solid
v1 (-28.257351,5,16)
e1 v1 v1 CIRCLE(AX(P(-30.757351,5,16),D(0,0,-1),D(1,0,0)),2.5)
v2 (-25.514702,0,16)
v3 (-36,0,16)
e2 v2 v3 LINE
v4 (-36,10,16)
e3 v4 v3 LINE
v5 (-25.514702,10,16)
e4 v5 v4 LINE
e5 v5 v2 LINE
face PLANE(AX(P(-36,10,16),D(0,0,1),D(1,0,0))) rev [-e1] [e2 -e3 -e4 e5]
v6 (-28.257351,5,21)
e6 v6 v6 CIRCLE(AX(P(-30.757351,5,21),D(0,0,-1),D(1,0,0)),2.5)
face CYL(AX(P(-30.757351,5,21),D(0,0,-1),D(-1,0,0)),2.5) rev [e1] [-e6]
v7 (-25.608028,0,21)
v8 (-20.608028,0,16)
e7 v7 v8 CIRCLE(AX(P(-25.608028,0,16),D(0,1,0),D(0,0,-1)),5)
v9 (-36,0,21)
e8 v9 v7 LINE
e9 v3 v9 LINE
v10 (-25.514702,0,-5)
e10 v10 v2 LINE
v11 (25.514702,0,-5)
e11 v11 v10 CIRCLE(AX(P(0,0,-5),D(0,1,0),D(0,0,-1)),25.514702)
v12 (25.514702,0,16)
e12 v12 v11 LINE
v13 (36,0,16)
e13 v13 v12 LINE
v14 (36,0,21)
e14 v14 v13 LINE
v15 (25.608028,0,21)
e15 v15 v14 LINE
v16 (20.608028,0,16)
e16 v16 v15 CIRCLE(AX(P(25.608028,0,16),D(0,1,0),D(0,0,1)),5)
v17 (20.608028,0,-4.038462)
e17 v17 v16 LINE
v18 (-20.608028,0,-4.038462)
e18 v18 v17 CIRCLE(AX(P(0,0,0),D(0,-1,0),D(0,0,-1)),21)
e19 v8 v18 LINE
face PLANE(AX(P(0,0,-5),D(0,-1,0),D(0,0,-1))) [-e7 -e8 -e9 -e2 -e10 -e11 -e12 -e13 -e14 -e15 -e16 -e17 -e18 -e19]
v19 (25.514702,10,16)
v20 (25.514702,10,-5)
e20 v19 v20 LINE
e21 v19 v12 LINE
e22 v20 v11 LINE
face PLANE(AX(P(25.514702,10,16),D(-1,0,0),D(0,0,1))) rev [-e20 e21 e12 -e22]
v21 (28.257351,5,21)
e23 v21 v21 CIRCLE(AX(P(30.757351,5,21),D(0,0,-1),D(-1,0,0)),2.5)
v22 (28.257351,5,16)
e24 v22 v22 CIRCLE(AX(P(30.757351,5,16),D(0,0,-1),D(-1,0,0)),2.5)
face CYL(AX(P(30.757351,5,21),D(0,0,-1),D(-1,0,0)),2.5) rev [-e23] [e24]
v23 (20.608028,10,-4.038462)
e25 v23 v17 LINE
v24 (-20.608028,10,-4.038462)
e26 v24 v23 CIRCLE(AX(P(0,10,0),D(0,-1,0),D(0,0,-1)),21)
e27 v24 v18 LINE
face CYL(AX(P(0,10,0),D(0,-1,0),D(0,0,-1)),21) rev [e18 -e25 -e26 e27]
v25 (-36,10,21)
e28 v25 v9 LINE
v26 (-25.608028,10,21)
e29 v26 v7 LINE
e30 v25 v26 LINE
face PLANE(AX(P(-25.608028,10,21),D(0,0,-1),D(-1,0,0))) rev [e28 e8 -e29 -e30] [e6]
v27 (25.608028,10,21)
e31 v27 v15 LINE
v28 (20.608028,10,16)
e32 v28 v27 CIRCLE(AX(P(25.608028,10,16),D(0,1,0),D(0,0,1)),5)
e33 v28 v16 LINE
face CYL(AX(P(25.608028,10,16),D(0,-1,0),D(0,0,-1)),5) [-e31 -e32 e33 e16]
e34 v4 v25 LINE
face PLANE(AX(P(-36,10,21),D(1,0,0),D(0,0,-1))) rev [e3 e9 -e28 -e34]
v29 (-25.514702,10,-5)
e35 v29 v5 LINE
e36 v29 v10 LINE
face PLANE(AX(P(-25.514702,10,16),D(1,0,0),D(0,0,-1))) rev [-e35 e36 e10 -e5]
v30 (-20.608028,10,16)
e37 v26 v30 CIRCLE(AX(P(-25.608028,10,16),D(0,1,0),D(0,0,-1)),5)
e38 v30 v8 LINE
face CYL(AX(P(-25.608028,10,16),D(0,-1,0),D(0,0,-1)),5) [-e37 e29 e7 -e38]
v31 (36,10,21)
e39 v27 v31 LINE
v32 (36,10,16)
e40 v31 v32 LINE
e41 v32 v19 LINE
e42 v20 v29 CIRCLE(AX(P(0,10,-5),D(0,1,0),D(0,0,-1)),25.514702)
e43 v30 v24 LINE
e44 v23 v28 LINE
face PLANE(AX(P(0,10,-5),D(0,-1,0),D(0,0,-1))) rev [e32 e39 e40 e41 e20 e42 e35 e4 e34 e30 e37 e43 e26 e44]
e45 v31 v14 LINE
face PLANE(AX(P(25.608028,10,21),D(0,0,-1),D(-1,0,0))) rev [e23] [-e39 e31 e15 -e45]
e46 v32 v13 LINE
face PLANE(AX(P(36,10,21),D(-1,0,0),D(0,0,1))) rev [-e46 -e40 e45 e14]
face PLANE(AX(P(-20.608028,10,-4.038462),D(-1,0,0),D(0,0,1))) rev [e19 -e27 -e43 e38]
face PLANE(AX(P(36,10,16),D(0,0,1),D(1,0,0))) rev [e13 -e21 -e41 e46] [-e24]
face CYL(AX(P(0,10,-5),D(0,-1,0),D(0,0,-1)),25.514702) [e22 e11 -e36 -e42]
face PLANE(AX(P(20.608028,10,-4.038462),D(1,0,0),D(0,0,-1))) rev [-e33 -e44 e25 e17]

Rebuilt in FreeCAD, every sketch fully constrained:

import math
import FreeCAD as App
import Part
import Sketcher

doc = App.newDocument("Part")
body = doc.addObject("PartDesign::Body", "Body")

# Sketch on XZ plane
sketch1 = body.newObject("Sketcher::SketchObject", "Sketch")
sketch1.AttachmentSupport = (doc.getObject("XZ_Plane"), [""])
sketch1.MapMode = "FlatFace"
sketch1.addGeometry(Part.LineSegment(App.Vector(-21, 16, 0), App.Vector(-21, -4, 0)), False)
sketch1.addGeometry(Part.ArcOfCircle(Part.Circle(App.Vector(0, 0, 0), App.Vector(0, 0, 1), 21), math.radians(-169), math.radians(-11)), False)
sketch1.addGeometry(Part.LineSegment(App.Vector(21, -4, 0), App.Vector(21, 16, 0)), False)
sketch1.addGeometry(Part.ArcOfCircle(Part.Circle(App.Vector(26, 16, 0), App.Vector(0, 0, 1), 5), math.radians(90), math.radians(180)), False)
sketch1.addGeometry(Part.LineSegment(App.Vector(26, 21, 0), App.Vector(36, 21, 0)), False)
sketch1.addGeometry(Part.LineSegment(App.Vector(36, 21, 0), App.Vector(36, 16, 0)), False)
sketch1.addGeometry(Part.LineSegment(App.Vector(36, 16, 0), App.Vector(26, 16, 0)), False)
sketch1.addGeometry(Part.LineSegment(App.Vector(26, 16, 0), App.Vector(26, -5, 0)), False)
sketch1.addGeometry(Part.ArcOfCircle(Part.Circle(App.Vector(0, -5, 0), App.Vector(0, 0, 1), 26), math.radians(180), math.radians(360)), False)
sketch1.addGeometry(Part.LineSegment(App.Vector(-26, -5, 0), App.Vector(-26, 16, 0)), False)
sketch1.addGeometry(Part.LineSegment(App.Vector(-26, 16, 0), App.Vector(-36, 16, 0)), False)
sketch1.addGeometry(Part.LineSegment(App.Vector(-36, 16, 0), App.Vector(-36, 21, 0)), False)
sketch1.addGeometry(Part.LineSegment(App.Vector(-36, 21, 0), App.Vector(-26, 21, 0)), False)
sketch1.addGeometry(Part.ArcOfCircle(Part.Circle(App.Vector(-26, 16, 0), App.Vector(0, 0, 1), 5), math.radians(0), math.radians(90)), False)
sketch1.addConstraint(Sketcher.Constraint("Coincident", 0, 2, 1, 1))
sketch1.addConstraint(Sketcher.Constraint("Coincident", 1, 2, 2, 1))
sketch1.addConstraint(Sketcher.Constraint("Tangent", 2, 2, 3, 2))
sketch1.addConstraint(Sketcher.Constraint("Tangent", 3, 1, 4, 1))
sketch1.addConstraint(Sketcher.Constraint("Coincident", 4, 2, 5, 1))
sketch1.addConstraint(Sketcher.Constraint("Coincident", 5, 2, 6, 1))
sketch1.addConstraint(Sketcher.Constraint("Coincident", 6, 2, 7, 1))
sketch1.addConstraint(Sketcher.Constraint("Tangent", 7, 2, 8, 2))
sketch1.addConstraint(Sketcher.Constraint("Tangent", 8, 1, 9, 1))
sketch1.addConstraint(Sketcher.Constraint("Coincident", 9, 2, 10, 1))
sketch1.addConstraint(Sketcher.Constraint("Coincident", 10, 2, 11, 1))
sketch1.addConstraint(Sketcher.Constraint("Coincident", 11, 2, 12, 1))
sketch1.addConstraint(Sketcher.Constraint("Tangent", 12, 2, 13, 2))
sketch1.addConstraint(Sketcher.Constraint("Tangent", 13, 1, 0, 1))
sketch1.addConstraint(Sketcher.Constraint("Vertical", 0))
sketch1.addConstraint(Sketcher.Constraint("Vertical", 2))
sketch1.addConstraint(Sketcher.Constraint("Horizontal", 4))
sketch1.addConstraint(Sketcher.Constraint("Vertical", 5))
sketch1.addConstraint(Sketcher.Constraint("Horizontal", 6))
sketch1.addConstraint(Sketcher.Constraint("Vertical", 7))
sketch1.addConstraint(Sketcher.Constraint("Vertical", 9))
sketch1.addConstraint(Sketcher.Constraint("Horizontal", 10))
sketch1.addConstraint(Sketcher.Constraint("Vertical", 11))
sketch1.addConstraint(Sketcher.Constraint("Horizontal", 12))
sketch1.addConstraint(Sketcher.Constraint("Coincident", 1, 3, -1, 1))
sketch1.addConstraint(Sketcher.Constraint("Equal", 3, 13))
sketch1.addConstraint(Sketcher.Constraint("Symmetric", 3, 3, 13, 3, -2))
sketch1.addConstraint(Sketcher.Constraint("Symmetric", 6, 2, 9, 2, -2))
sketch1.addConstraint(Sketcher.Constraint("Horizontal", 2, 2, 5, 2))
sketch1.addConstraint(Sketcher.Constraint("Equal", 6, 10))
sketch1.addConstraint(Sketcher.Constraint("Radius", 1, 21.0))
sketch1.addConstraint(Sketcher.Constraint("Radius", 3, 5.0))
sketch1.addConstraint(Sketcher.Constraint("DistanceY", 7, 2, 7, 1, 21.0))
sketch1.addConstraint(Sketcher.Constraint("DistanceY", -1, 1, 3, 3, 16.0))
sketch1.addConstraint(Sketcher.Constraint("DistanceX", -1, 1, 4, 2, 36.0))
sketch1.addConstraint(Sketcher.Constraint("Radius", 8, 25.514702))
sketch1.addConstraint(Sketcher.Constraint("DistanceX", 4, 1, 4, 2, 10.391972))
pad1 = body.newObject("PartDesign::Pad", "Pad")
pad1.Profile = sketch1
pad1.Length = 10
pad1.Reversed = True

# Sketch on XY plane
sketch2 = body.newObject("Sketcher::SketchObject", "Sketch001")
sketch2.AttachmentSupport = (doc.getObject("XY_Plane"), [""])
sketch2.MapMode = "FlatFace"
sketch2.AttachmentOffset = App.Placement(App.Vector(0, 0, 16), App.Rotation())
sketch2.addGeometry(Part.Circle(App.Vector(30.8, 5, 0), App.Vector(0, 0, 1), 2.5), False)
sketch2.addGeometry(Part.Circle(App.Vector(-30.8, 5, 0), App.Vector(0, 0, 1), 2.5), False)
sketch2.addConstraint(Sketcher.Constraint("Equal", 0, 1))
sketch2.addConstraint(Sketcher.Constraint("Symmetric", 0, 3, 1, 3, -2))
sketch2.addConstraint(Sketcher.Constraint("Diameter", 0, 5.0))
sketch2.addConstraint(Sketcher.Constraint("DistanceY", -1, 1, 0, 3, 5.0))
sketch2.addConstraint(Sketcher.Constraint("DistanceX", 1, 3, 0, 3, 61.514702))
pocket1 = body.newObject("PartDesign::Pocket", "Pocket")
pocket1.Profile = sketch2
pocket1.Type = "ThroughAll"
pocket1.Reversed = True

doc.recompute()
